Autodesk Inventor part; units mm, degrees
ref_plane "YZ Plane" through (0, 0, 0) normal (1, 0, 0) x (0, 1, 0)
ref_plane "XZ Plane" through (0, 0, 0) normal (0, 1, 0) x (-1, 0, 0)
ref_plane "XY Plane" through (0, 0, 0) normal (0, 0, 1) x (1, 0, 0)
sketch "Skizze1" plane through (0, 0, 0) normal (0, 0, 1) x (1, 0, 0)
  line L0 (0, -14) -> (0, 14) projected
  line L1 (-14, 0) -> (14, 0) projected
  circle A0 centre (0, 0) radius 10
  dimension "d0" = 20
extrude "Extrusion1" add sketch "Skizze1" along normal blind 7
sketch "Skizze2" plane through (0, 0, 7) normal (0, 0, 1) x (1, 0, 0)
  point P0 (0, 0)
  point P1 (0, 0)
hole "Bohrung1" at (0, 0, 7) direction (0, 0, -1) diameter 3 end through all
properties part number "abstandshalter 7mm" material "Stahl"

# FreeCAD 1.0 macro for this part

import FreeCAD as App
import Part
import Sketcher

doc = App.newDocument("Part")
body = doc.addObject("PartDesign::Body", "Body")

# Sketch on XY plane
sketch1 = doc.addObject("Sketcher::SketchObject", "Sketch")
body.addObject(sketch1)
sketch1.AttachmentSupport = (doc.XY_Plane, [""])
sketch1.MapMode = "FlatFace"
sketch1.addGeometry(Part.Circle(App.Vector(0, 0, 0), App.Vector(0, 0, 1), 10), False)
sketch1.addConstraint([
    Sketcher.Constraint("Coincident", 0, 3, -1, 1),
    Sketcher.Constraint("Diameter", 0, 20.0),
])
pad1 = doc.addObject("PartDesign::Pad", "Pad")
body.addObject(pad1)
pad1.Profile = sketch1
pad1.Length = 7

# Sketch on XY plane
sketch2 = doc.addObject("Sketcher::SketchObject", "Sketch001")
body.addObject(sketch2)
sketch2.AttachmentSupport = (doc.XY_Plane, [""])
sketch2.MapMode = "FlatFace"
sketch2.AttachmentOffset = App.Placement(App.Vector(0, 0, 7), App.Rotation())
sketch2.addGeometry(Part.Circle(App.Vector(0, 0, 0), App.Vector(0, 0, 1), 1.5), False)
sketch2.addConstraint([
    Sketcher.Constraint("Coincident", 0, 3, -1, 1),
    Sketcher.Constraint("Diameter", 0, 3.0),
])
doc.recompute()
hole = doc.addObject("PartDesign::Hole", "Hole")
body.addObject(hole)
hole.Profile = sketch2
hole.ThreadType = "None"
hole.Diameter = 3
hole.DepthType = "ThroughAll"

doc.recompute()
